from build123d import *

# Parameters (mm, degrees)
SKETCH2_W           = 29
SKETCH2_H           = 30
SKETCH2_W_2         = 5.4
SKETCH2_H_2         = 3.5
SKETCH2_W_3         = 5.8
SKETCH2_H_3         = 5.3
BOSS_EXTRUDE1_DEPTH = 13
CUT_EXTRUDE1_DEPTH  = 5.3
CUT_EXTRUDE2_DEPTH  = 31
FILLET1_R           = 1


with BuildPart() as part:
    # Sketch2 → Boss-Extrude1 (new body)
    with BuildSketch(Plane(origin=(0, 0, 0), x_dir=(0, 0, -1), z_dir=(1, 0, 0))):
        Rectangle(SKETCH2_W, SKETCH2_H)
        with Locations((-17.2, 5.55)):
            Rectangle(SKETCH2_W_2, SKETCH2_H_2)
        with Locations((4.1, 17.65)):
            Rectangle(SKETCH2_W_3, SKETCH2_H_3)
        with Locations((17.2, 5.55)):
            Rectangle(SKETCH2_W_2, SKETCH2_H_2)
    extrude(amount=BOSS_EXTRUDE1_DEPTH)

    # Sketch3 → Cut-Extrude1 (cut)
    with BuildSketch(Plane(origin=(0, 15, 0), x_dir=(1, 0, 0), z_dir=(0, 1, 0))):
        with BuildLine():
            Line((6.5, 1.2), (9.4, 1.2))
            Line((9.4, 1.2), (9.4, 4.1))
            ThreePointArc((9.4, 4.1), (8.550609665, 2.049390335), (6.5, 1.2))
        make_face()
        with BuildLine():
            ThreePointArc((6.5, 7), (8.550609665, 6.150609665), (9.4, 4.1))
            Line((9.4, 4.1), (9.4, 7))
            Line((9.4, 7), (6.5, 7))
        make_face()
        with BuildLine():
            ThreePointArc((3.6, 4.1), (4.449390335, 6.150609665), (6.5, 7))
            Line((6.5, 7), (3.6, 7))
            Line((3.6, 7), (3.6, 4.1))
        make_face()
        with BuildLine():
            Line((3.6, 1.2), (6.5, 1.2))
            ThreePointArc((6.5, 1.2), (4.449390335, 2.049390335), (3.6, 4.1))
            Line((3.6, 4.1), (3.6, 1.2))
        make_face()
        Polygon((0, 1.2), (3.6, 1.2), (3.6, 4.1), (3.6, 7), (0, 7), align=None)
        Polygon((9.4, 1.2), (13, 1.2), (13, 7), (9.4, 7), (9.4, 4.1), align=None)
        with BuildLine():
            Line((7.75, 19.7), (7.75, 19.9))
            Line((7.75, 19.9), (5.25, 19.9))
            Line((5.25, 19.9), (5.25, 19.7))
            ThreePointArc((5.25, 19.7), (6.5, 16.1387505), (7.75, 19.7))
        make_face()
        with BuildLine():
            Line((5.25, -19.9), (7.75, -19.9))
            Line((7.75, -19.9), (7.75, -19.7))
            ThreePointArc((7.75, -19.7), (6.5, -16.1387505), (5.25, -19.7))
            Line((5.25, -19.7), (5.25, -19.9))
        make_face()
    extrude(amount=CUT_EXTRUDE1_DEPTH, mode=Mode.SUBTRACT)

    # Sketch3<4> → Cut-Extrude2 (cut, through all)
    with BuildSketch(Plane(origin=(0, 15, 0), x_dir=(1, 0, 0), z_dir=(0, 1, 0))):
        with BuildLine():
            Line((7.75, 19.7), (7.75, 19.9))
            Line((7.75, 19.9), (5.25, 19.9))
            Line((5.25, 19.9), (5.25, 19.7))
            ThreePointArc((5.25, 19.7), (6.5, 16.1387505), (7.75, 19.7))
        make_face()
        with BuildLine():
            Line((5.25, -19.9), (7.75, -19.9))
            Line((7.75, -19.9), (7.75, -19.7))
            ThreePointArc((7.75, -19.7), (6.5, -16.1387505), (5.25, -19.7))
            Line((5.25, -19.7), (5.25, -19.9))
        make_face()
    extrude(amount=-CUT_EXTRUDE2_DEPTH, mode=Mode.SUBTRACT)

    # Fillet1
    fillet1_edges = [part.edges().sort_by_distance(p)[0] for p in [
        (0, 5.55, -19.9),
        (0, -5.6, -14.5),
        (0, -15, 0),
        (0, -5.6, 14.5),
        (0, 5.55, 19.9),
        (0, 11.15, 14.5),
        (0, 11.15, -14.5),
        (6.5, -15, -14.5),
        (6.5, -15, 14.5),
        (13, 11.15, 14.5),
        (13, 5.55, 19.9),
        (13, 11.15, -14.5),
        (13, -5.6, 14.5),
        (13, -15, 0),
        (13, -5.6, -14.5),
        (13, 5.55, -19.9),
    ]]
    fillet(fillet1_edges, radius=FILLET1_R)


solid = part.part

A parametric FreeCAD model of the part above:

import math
import FreeCAD as App
import Part
import Sketcher

V = App.Vector


def edges_at(feature, points):
    """Names of the edges that pass closest to the given points."""
    edges = feature.Shape.Edges
    near = lambda p: min(range(len(edges)), key=lambda i: edges[i].distToShape(Part.Vertex(*p))[0])
    return sorted({f"Edge{near(p) + 1}" for p in points})


def add_polygon(sketch, points):
    """Adds a closed chain of lines whose ends are joined by coincident constraints."""
    first, n = sketch.GeometryCount, len(points)
    for a, b in zip(points, points[1:] + points[:1]):
        sketch.addGeometry(Part.LineSegment(App.Vector(*a, 0), App.Vector(*b, 0)), False)
    for i in range(n):
        sketch.addConstraint(Sketcher.Constraint("Coincident", first + i, 2, first + (i + 1) % n, 1))

doc = App.newDocument("Part")
body = doc.addObject("PartDesign::Body", "Body")

sketch1 = doc.addObject("Sketcher::SketchObject", "Sketch")
body.addObject(sketch1)
sketch1.AttachmentSupport = (doc.YZ_Plane, [""])
sketch1.MapMode = "FlatFace"
add_polygon(sketch1, [(3.8, 14.5), (-15, 14.5), (-15, -14.5), (3.8, -14.5), (3.8, -19.9), (7.3, -19.9), (7.3, -14.5), (15, -14.5), (15, -7), (20.3, -7), (20.3, -1.2), (15, -1.2), (15, 14.5), (7.3, 14.5), (7.3, 19.9), (3.8, 19.9)])
sketch1.addConstraint(Sketcher.Constraint("Horizontal", 0))
sketch1.addConstraint(Sketcher.Constraint("Vertical", 1))
sketch1.addConstraint(Sketcher.Constraint("Horizontal", 2))
sketch1.addConstraint(Sketcher.Constraint("Vertical", 3))
sketch1.addConstraint(Sketcher.Constraint("Horizontal", 4))
sketch1.addConstraint(Sketcher.Constraint("Vertical", 5))
sketch1.addConstraint(Sketcher.Constraint("Horizontal", 6))
sketch1.addConstraint(Sketcher.Constraint("Vertical", 7))
sketch1.addConstraint(Sketcher.Constraint("Horizontal", 8))
sketch1.addConstraint(Sketcher.Constraint("Vertical", 9))
sketch1.addConstraint(Sketcher.Constraint("Horizontal", 10))
sketch1.addConstraint(Sketcher.Constraint("Vertical", 11))
sketch1.addConstraint(Sketcher.Constraint("Horizontal", 12))
sketch1.addConstraint(Sketcher.Constraint("Vertical", 13))
sketch1.addConstraint(Sketcher.Constraint("Horizontal", 14))
sketch1.addConstraint(Sketcher.Constraint("Vertical", 15))
sketch1.addConstraint(Sketcher.Constraint("Symmetric", 0, 2, 6, 2, -1, 1))
sketch1.addConstraint(Sketcher.Constraint("Symmetric", 1, 2, 11, 2, -1, 1))
sketch1.addConstraint(Sketcher.Constraint("Symmetric", 5, 2, 12, 2, -1))
sketch1.addConstraint(Sketcher.Constraint("Symmetric", 3, 2, 14, 2, -1))
sketch1.addConstraint(Sketcher.Constraint("DistanceY", 1, 2, 1, 1, 29.0))
sketch1.addConstraint(Sketcher.Constraint("DistanceX", 0, 2, 0, 1, 18.8))
sketch1.addConstraint(Sketcher.Constraint("DistanceX", 4, 1, 4, 2, 3.5))
sketch1.addConstraint(Sketcher.Constraint("DistanceX", 6, 1, 6, 2, 7.7))
sketch1.addConstraint(Sketcher.Constraint("DistanceX", 8, 1, 8, 2, 5.3))
sketch1.addConstraint(Sketcher.Constraint("DistanceY", 3, 2, 3, 1, 5.4))
sketch1.addConstraint(Sketcher.Constraint("DistanceY", 7, 1, 7, 2, 7.5))
sketch1.addConstraint(Sketcher.Constraint("DistanceY", 9, 1, 9, 2, 5.8))
pad1 = doc.addObject("PartDesign::Pad", "Pad")
body.addObject(pad1)
pad1.Profile = sketch1
pad1.Length = 13

sketch2 = doc.addObject("Sketcher::SketchObject", "Sketch001")
body.addObject(sketch2)
sketch2.AttachmentSupport = (doc.XZ_Plane, [""])
sketch2.MapMode = "FlatFace"
sketch2.AttachmentOffset = App.Placement(V(0, 0, -15), App.Rotation())
sketch2.addGeometry(Part.LineSegment(V(6.5, -1.2, 0), V(13, -1.2, 0)), False)
sketch2.addGeometry(Part.LineSegment(V(13, -1.2, 0), V(13, -7, 0)), False)
sketch2.addGeometry(Part.LineSegment(V(13, -7, 0), V(6.5, -7, 0)), False)
sketch2.addGeometry(Part.ArcOfCircle(Part.Circle(V(6.5, -4.1, 0), V(0, 0, 1), 2.9), math.radians(-90), math.radians(0)), False)
sketch2.addGeometry(Part.ArcOfCircle(Part.Circle(V(6.5, -4.1, 0), V(0, 0, 1), 2.9), math.radians(0), math.radians(90)), False)
sketch2.addGeometry(Part.ArcOfCircle(Part.Circle(V(6.5, -4.1, 0), V(0, 0, 1), 2.9), math.radians(-180), math.radians(-90)), False)
sketch2.addGeometry(Part.LineSegment(V(6.5, -7, 0), V(0, -7, 0)), False)
sketch2.addGeometry(Part.LineSegment(V(0, -7, 0), V(0, -1.2, 0)), False)
sketch2.addGeometry(Part.LineSegment(V(0, -1.2, 0), V(6.5, -1.2, 0)), False)
sketch2.addGeometry(Part.ArcOfCircle(Part.Circle(V(6.5, -4.1, 0), V(0, 0, 1), 2.9), math.radians(90), math.radians(180)), False)
sketch2.addGeometry(Part.LineSegment(V(7.75, -19.7, 0), V(7.75, -19.9, 0)), False)
sketch2.addGeometry(Part.LineSegment(V(7.75, -19.9, 0), V(5.25, -19.9, 0)), False)
sketch2.addGeometry(Part.LineSegment(V(5.25, -19.9, 0), V(5.25, -19.7, 0)), False)
sketch2.addGeometry(Part.ArcOfCircle(Part.Circle(V(6.5, -18.14, 0), V(0, 0, 1), 2), math.radians(-51), math.radians(231)), False)
sketch2.addGeometry(Part.LineSegment(V(5.25, 19.9, 0), V(7.75, 19.9, 0)), False)
sketch2.addGeometry(Part.LineSegment(V(7.75, 19.9, 0), V(7.75, 19.7, 0)), False)
sketch2.addGeometry(Part.ArcOfCircle(Part.Circle(V(6.5, 18.14, 0), V(0, 0, 1), 2), math.radians(129), math.radians(411)), False)
sketch2.addGeometry(Part.LineSegment(V(5.25, 19.7, 0), V(5.25, 19.9, 0)), False)
sketch2.addConstraint(Sketcher.Constraint("Coincident", 0, 2, 1, 1))
sketch2.addConstraint(Sketcher.Constraint("Coincident", 1, 2, 2, 1))
sketch2.addConstraint(Sketcher.Constraint("Tangent", 2, 2, 3, 1))
sketch2.addConstraint(Sketcher.Constraint("Tangent", 3, 2, 4, 1))
sketch2.addConstraint(Sketcher.Constraint("Tangent", 4, 2, 0, 1))
sketch2.addConstraint(Sketcher.Constraint("Tangent", 5, 2, 6, 1))
sketch2.addConstraint(Sketcher.Constraint("Coincident", 6, 2, 7, 1))
sketch2.addConstraint(Sketcher.Constraint("Coincident", 7, 2, 8, 1))
sketch2.addConstraint(Sketcher.Constraint("Tangent", 8, 2, 9, 1))
sketch2.addConstraint(Sketcher.Constraint("Tangent", 9, 2, 5, 1))
sketch2.addConstraint(Sketcher.Constraint("Coincident", 10, 2, 11, 1))
sketch2.addConstraint(Sketcher.Constraint("Coincident", 11, 2, 12, 1))
sketch2.addConstraint(Sketcher.Constraint("Coincident", 12, 2, 13, 2))
sketch2.addConstraint(Sketcher.Constraint("Coincident", 13, 1, 10, 1))
sketch2.addConstraint(Sketcher.Constraint("Coincident", 14, 2, 15, 1))
sketch2.addConstraint(Sketcher.Constraint("Coincident", 15, 2, 16, 2))
sketch2.addConstraint(Sketcher.Constraint("Coincident", 16, 1, 17, 1))
sketch2.addConstraint(Sketcher.Constraint("Coincident", 17, 2, 14, 1))
sketch2.addConstraint(Sketcher.Constraint("Horizontal", 0))
sketch2.addConstraint(Sketcher.Constraint("Vertical", 1))
sketch2.addConstraint(Sketcher.Constraint("Horizontal", 2))
sketch2.addConstraint(Sketcher.Constraint("Horizontal", 6))
sketch2.addConstraint(Sketcher.Constraint("Vertical", 7))
sketch2.addConstraint(Sketcher.Constraint("Horizontal", 8))
sketch2.addConstraint(Sketcher.Constraint("Vertical", 10))
sketch2.addConstraint(Sketcher.Constraint("Horizontal", 11))
sketch2.addConstraint(Sketcher.Constraint("Vertical", 12))
sketch2.addConstraint(Sketcher.Constraint("Horizontal", 14))
sketch2.addConstraint(Sketcher.Constraint("Vertical", 15))
sketch2.addConstraint(Sketcher.Constraint("Vertical", 17))
sketch2.addConstraint(Sketcher.Constraint("Coincident", 5, 3, 3, 3))
sketch2.addConstraint(Sketcher.Constraint("Coincident", 8, 2, 4, 2))
sketch2.addConstraint(Sketcher.Constraint("Equal", 3, 4))
sketch2.addConstraint(Sketcher.Constraint("Equal", 13, 16))
sketch2.addConstraint(Sketcher.Constraint("Symmetric", 13, 3, 16, 3, -1))
sketch2.addConstraint(Sketcher.Constraint("Symmetric", 10, 2, 14, 2, -1))
sketch2.addConstraint(Sketcher.Constraint("PointOnObject", 6, 2, -2))
sketch2.addConstraint(Sketcher.Constraint("Horizontal", 9, 3, 3, 2))
sketch2.addConstraint(Sketcher.Constraint("Horizontal", 3, 2, 9, 2))
sketch2.addConstraint(Sketcher.Constraint("Horizontal", 12, 2, 13, 1))
sketch2.addConstraint(Sketcher.Constraint("Horizontal", 15, 2, 16, 1))
sketch2.addConstraint(Sketcher.Constraint("Vertical", 9, 3, 13, 3))
sketch2.addConstraint(Sketcher.Constraint("Equal", 2, 6))
sketch2.addConstraint(Sketcher.Constraint("Radius", 13, 2.0))
sketch2.addConstraint(Sketcher.Constraint("Radius", 3, 2.9))
sketch2.addConstraint(Sketcher.Constraint("DistanceX", 0, 1, 0, 2, 6.5))
sketch2.addConstraint(Sketcher.Constraint("DistanceX", 11, 2, 11, 1, 2.5))
sketch2.addConstraint(Sketcher.Constraint("DistanceY", 10, 2, 10, 1, 0.2))
sketch2.addConstraint(Sketcher.Constraint("DistanceY", 1, 2, -1, 1, 7.0))
sketch2.addConstraint(Sketcher.Constraint("DistanceY", 10, 2, -1, 1, 19.9))
pocket1 = doc.addObject("PartDesign::Pocket", "Pocket")
body.addObject(pocket1)
pocket1.Profile = sketch2
pocket1.Length = 5.3

sketch3 = doc.addObject("Sketcher::SketchObject", "Sketch002")
body.addObject(sketch3)
sketch3.AttachmentSupport = (doc.XZ_Plane, [""])
sketch3.MapMode = "FlatFace"
sketch3.AttachmentOffset = App.Placement(V(0, 0, -15), App.Rotation())
sketch3.addGeometry(Part.LineSegment(V(7.75, -19.7, 0), V(7.75, -19.9, 0)), False)
sketch3.addGeometry(Part.LineSegment(V(7.75, -19.9, 0), V(5.25, -19.9, 0)), False)
sketch3.addGeometry(Part.LineSegment(V(5.25, -19.9, 0), V(5.25, -19.7, 0)), False)
sketch3.addGeometry(Part.ArcOfCircle(Part.Circle(V(6.5, -18.14, 0), V(0, 0, 1), 2), math.radians(-51), math.radians(231)), False)
sketch3.addGeometry(Part.LineSegment(V(5.25, 19.9, 0), V(7.75, 19.9, 0)), False)
sketch3.addGeometry(Part.LineSegment(V(7.75, 19.9, 0), V(7.75, 19.7, 0)), False)
sketch3.addGeometry(Part.ArcOfCircle(Part.Circle(V(6.5, 18.14, 0), V(0, 0, 1), 2), math.radians(129), math.radians(411)), False)
sketch3.addGeometry(Part.LineSegment(V(5.25, 19.7, 0), V(5.25, 19.9, 0)), False)
sketch3.addConstraint(Sketcher.Constraint("Coincident", 0, 2, 1, 1))
sketch3.addConstraint(Sketcher.Constraint("Coincident", 1, 2, 2, 1))
sketch3.addConstraint(Sketcher.Constraint("Coincident", 2, 2, 3, 2))
sketch3.addConstraint(Sketcher.Constraint("Coincident", 3, 1, 0, 1))
sketch3.addConstraint(Sketcher.Constraint("Coincident", 4, 2, 5, 1))
sketch3.addConstraint(Sketcher.Constraint("Coincident", 5, 2, 6, 2))
sketch3.addConstraint(Sketcher.Constraint("Coincident", 6, 1, 7, 1))
sketch3.addConstraint(Sketcher.Constraint("Coincident", 7, 2, 4, 1))
sketch3.addConstraint(Sketcher.Constraint("Vertical", 0))
sketch3.addConstraint(Sketcher.Constraint("Horizontal", 1))
sketch3.addConstraint(Sketcher.Constraint("Vertical", 2))
sketch3.addConstraint(Sketcher.Constraint("Horizontal", 4))
sketch3.addConstraint(Sketcher.Constraint("Vertical", 5))
sketch3.addConstraint(Sketcher.Constraint("Vertical", 7))
sketch3.addConstraint(Sketcher.Constraint("Equal", 3, 6))
sketch3.addConstraint(Sketcher.Constraint("Symmetric", 3, 3, 6, 3, -1))
sketch3.addConstraint(Sketcher.Constraint("Symmetric", 0, 2, 4, 2, -1))
sketch3.addConstraint(Sketcher.Constraint("Horizontal", 2, 2, 3, 1))
sketch3.addConstraint(Sketcher.Constraint("Horizontal", 5, 2, 6, 1))
sketch3.addConstraint(Sketcher.Constraint("Radius", 3, 2.0))
sketch3.addConstraint(Sketcher.Constraint("DistanceX", 1, 2, 1, 1, 2.5))
sketch3.addConstraint(Sketcher.Constraint("DistanceY", 0, 2, 0, 1, 0.2))
sketch3.addConstraint(Sketcher.Constraint("DistanceX", -1, 1, 3, 3, 6.5))
sketch3.addConstraint(Sketcher.Constraint("DistanceY", 0, 2, -1, 1, 19.9))
pocket2 = doc.addObject("PartDesign::Pocket", "Pocket001")
body.addObject(pocket2)
pocket2.Profile = sketch3
pocket2.Type = "ThroughAll"
pocket2.Reversed = True
doc.recompute()

fillet = doc.addObject("PartDesign::Fillet", "Fillet")
body.addObject(fillet)
fillet.Base = (pocket2, edges_at(pocket2, [
    (0, 5.55, -19.9),
    (0, -5.6, -14.5),
    (0, -15, 0),
    (0, -5.6, 14.5),
    (0, 5.55, 19.9),
    (0, 11.15, 14.5),
    (0, 11.15, -14.5),
    (6.5, -15, -14.5),
    (6.5, -15, 14.5),
    (13, 11.15, 14.5),
    (13, 5.55, 19.9),
    (13, 11.15, -14.5),
    (13, -5.6, 14.5),
    (13, -15, 0),
    (13, -5.6, -14.5),
    (13, 5.55, -19.9),
]))
fillet.Radius = 1

doc.recompute()
